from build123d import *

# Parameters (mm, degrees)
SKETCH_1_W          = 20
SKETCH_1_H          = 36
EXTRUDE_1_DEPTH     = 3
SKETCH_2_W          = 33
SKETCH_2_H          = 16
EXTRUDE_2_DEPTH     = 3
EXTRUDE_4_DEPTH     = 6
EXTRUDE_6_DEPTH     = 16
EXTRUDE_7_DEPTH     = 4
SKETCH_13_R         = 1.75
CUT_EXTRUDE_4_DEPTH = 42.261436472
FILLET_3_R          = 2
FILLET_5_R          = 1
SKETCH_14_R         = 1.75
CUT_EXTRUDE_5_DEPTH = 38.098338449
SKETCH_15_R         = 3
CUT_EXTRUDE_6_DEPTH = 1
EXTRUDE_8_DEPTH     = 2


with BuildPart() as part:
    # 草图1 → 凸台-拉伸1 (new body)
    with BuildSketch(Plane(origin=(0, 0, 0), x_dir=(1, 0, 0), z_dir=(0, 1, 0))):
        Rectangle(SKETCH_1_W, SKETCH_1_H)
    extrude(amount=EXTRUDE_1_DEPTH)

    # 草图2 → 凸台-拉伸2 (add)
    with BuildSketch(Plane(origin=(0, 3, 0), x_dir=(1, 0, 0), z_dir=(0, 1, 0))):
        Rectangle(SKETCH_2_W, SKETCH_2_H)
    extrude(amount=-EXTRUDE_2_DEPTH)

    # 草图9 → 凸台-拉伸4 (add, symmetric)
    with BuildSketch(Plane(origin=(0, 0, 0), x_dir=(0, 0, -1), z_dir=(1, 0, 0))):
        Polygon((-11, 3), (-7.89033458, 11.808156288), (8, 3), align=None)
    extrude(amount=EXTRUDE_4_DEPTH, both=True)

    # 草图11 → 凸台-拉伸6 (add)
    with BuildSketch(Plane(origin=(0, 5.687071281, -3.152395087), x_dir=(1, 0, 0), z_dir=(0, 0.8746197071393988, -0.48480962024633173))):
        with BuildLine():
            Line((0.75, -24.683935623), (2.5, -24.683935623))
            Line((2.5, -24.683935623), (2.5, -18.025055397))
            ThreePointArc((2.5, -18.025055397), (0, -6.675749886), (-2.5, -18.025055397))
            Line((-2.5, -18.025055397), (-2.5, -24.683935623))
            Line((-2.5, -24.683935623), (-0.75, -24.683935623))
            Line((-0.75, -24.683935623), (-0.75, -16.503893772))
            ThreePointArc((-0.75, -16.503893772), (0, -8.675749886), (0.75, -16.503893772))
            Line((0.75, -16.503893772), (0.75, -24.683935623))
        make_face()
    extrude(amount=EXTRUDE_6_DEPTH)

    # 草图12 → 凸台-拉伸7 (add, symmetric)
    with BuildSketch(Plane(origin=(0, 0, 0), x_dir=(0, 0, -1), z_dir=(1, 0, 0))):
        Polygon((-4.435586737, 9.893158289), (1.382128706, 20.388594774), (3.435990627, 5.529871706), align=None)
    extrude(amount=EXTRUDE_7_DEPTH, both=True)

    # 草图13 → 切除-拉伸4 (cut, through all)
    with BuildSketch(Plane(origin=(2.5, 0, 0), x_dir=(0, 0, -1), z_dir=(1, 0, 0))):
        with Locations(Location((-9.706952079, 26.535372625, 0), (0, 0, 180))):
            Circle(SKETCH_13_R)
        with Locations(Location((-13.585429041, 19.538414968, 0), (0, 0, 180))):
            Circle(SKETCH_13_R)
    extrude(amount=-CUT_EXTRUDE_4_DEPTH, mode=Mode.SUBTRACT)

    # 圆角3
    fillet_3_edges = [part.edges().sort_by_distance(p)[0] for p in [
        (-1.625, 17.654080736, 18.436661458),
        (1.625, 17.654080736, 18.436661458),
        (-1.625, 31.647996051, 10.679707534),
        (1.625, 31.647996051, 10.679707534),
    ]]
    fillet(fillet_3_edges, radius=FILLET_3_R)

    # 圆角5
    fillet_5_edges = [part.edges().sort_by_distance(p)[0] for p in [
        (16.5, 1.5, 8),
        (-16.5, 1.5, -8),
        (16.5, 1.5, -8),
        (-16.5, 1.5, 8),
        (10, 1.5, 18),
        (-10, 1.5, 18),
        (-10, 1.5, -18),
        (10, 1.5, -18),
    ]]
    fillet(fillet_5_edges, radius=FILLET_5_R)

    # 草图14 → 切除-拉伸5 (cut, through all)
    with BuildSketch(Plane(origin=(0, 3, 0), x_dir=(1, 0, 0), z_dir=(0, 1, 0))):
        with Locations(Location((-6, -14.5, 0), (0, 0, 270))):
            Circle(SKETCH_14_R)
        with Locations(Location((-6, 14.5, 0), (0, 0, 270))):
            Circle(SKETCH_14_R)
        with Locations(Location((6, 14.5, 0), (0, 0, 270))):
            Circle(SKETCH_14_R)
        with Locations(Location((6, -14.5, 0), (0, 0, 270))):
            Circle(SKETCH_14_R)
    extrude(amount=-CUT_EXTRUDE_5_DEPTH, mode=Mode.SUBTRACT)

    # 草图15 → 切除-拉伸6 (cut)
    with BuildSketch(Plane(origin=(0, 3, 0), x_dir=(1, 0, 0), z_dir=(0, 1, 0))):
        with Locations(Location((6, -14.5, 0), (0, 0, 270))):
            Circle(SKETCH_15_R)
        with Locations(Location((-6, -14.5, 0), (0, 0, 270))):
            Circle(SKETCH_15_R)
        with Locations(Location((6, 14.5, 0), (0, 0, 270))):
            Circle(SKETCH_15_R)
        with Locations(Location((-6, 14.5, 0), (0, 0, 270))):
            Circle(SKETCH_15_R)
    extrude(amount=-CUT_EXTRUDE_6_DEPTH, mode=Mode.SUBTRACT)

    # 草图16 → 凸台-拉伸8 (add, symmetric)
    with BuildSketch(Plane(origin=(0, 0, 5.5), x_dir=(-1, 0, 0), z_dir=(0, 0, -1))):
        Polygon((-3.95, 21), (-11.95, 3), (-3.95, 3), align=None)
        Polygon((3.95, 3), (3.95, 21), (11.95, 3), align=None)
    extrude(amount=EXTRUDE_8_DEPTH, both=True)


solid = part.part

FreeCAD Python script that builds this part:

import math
import FreeCAD as App
import Part
import Sketcher
from FreeCAD import Vector
Q = App.Units.Quantity


def edges_at(feature, points):
    """Names of the edges that pass closest to the given points."""
    edges = feature.Shape.Edges
    near = lambda p: min(range(len(edges)), key=lambda i: edges[i].distToShape(Part.Vertex(*p))[0])
    return sorted({f"Edge{near(p) + 1}" for p in points})


def add_polygon(sketch, points):
    """Adds a closed chain of lines whose ends are joined by coincident constraints."""
    first, n = sketch.GeometryCount, len(points)
    for a, b in zip(points, points[1:] + points[:1]):
        sketch.addGeometry(Part.LineSegment(App.Vector(*a, 0), App.Vector(*b, 0)), False)
    for i in range(n):
        sketch.addConstraint(Sketcher.Constraint("Coincident", first + i, 2, first + (i + 1) % n, 1))

doc = App.newDocument("Part")
body = doc.addObject("PartDesign::Body", "Body")

# Sketch on XZ plane
sketch1 = doc.addObject("Sketcher::SketchObject", "Sketch")
body.addObject(sketch1)
sketch1.AttachmentSupport = (doc.XZ_Plane, [""])
sketch1.MapMode = "FlatFace"
add_polygon(sketch1, [(-10, -18), (-10, 18), (10, 18), (10, -18)])  # lines 0-3
sketch1.addConstraint([
    Sketcher.Constraint("Vertical", 0),
    Sketcher.Constraint("Horizontal", 1),
    Sketcher.Constraint("Vertical", 2),
    Sketcher.Constraint("Horizontal", 3),
    Sketcher.Constraint("Symmetric", 0, 2, 2, 2, -1, 1),
    Sketcher.Constraint("DistanceX", 1, 1, 1, 2, 20.0),
    Sketcher.Constraint("DistanceY", 0, 1, 0, 2, 36.0),
])
pad1 = doc.addObject("PartDesign::Pad", "Pad")
body.addObject(pad1)
pad1.Profile = sketch1
pad1.Length = 3
pad1.Reversed = True

# Sketch on XZ plane
sketch2 = doc.addObject("Sketcher::SketchObject", "Sketch001")
body.addObject(sketch2)
sketch2.AttachmentSupport = (doc.XZ_Plane, [""])
sketch2.MapMode = "FlatFace"
sketch2.AttachmentOffset = App.Placement(Vector(0, 0, -3), App.Rotation())
add_polygon(sketch2, [(-16, -8), (-16, 8), (16, 8), (16, -8)])  # lines 0-3
sketch2.addConstraint([
    Sketcher.Constraint("Vertical", 0),
    Sketcher.Constraint("Horizontal", 1),
    Sketcher.Constraint("Vertical", 2),
    Sketcher.Constraint("Horizontal", 3),
    Sketcher.Constraint("Symmetric", 0, 2, 2, 2, -1, 1),
    Sketcher.Constraint("DistanceX", 1, 1, 1, 2, 33.0),
    Sketcher.Constraint("DistanceY", 0, 1, 0, 2, 16.0),
])
pad2 = doc.addObject("PartDesign::Pad", "Pad001")
body.addObject(pad2)
pad2.Profile = sketch2
pad2.Length = 3

# Sketch on YZ plane
sketch3 = doc.addObject("Sketcher::SketchObject", "Sketch002")
body.addObject(sketch3)
sketch3.AttachmentSupport = (doc.YZ_Plane, [""])
sketch3.MapMode = "FlatFace"
add_polygon(sketch3, [(12, 8), (3, 11), (3, -8)])  # lines 0-2
sketch3.addConstraint([
    Sketcher.Constraint("Vertical", 1),
    Sketcher.Constraint("DistanceY", 1, 2, 1, 1, 19.0),
    Sketcher.Constraint("Angle", 2, Q("61 deg")),
    Sketcher.Constraint("DistanceX", -1, 1, 0, 2, 3.0),
    Sketcher.Constraint("DistanceY", -1, 1, 0, 2, 11.0),
    Sketcher.Constraint("Distance", 2, 18.168279),
])
pad3 = doc.addObject("PartDesign::Pad", "Pad002")
body.addObject(pad3)
pad3.Profile = sketch3
pad3.Length = 12
pad3.Midplane = True

# Sketch on an angled plane
sketch4 = doc.addObject("Sketcher::SketchObject", "Sketch003")
body.addObject(sketch4)
sketch4.Placement = App.Placement(Vector(0, 5.687071, -3.152395), App.Rotation(Vector(1, 0, 0), Vector(0, -0.48480962, -0.874619707), Vector(0, 0.874619707, -0.48480962), "ZXY"))
sketch4.addGeometry([
    Part.LineSegment(Vector(0.8, -24.7, 0), Vector(2.5, -24.7, 0)),  # 0
    Part.LineSegment(Vector(2.5, -24.7, 0), Vector(2.5, -18, 0)),  # 1
    Part.ArcOfCircle(Part.Circle(Vector(0, -12.6, 0), Vector(0, 0, 1), 6), math.radians(-65), math.radians(245)),  # 2
    Part.LineSegment(Vector(-2.5, -18, 0), Vector(-2.5, -24.7, 0)),  # 3
    Part.LineSegment(Vector(-2.5, -24.7, 0), Vector(-0.8, -24.7, 0)),  # 4
    Part.LineSegment(Vector(-0.8, -24.7, 0), Vector(-0.8, -16.5, 0)),  # 5
    Part.ArcOfCircle(Part.Circle(Vector(0, -12.6, 0), Vector(0, 0, 1), 4), math.radians(-79), math.radians(259)),  # 6
    Part.LineSegment(Vector(0.8, -16.5, 0), Vector(0.8, -24.7, 0)),  # 7
], False)
sketch4.addConstraint([
    Sketcher.Constraint("Coincident", 0, 2, 1, 1),
    Sketcher.Constraint("Coincident", 1, 2, 2, 1),
    Sketcher.Constraint("Coincident", 2, 2, 3, 1),
    Sketcher.Constraint("Coincident", 3, 2, 4, 1),
    Sketcher.Constraint("Coincident", 4, 2, 5, 1),
    Sketcher.Constraint("Coincident", 5, 2, 6, 2),
    Sketcher.Constraint("Coincident", 6, 1, 7, 1),
    Sketcher.Constraint("Coincident", 7, 2, 0, 1),
    Sketcher.Constraint("Horizontal", 0),
    Sketcher.Constraint("Vertical", 1),
    Sketcher.Constraint("Vertical", 3),
    Sketcher.Constraint("Horizontal", 4),
    Sketcher.Constraint("Vertical", 5),
    Sketcher.Constraint("Vertical", 7),
    Sketcher.Constraint("Coincident", 6, 3, 2, 3),
    Sketcher.Constraint("Symmetric", 1, 2, 2, 2, -2),
    Sketcher.Constraint("Symmetric", 4, 2, 7, 2, -2),
    Sketcher.Constraint("Radius", 2, 5.95),
    Sketcher.Constraint("Radius", 6, 3.95),
    Sketcher.Constraint("DistanceX", 2, 2, 1, 2, 5.0),
    Sketcher.Constraint("DistanceX", 0, 1, 0, 2, 1.75),
    Sketcher.Constraint("DistanceY", 1, 1, 1, 2, 6.65888),
    Sketcher.Constraint("DistanceY", 2, 3, -1, 1, 12.62575),
])
pad4 = doc.addObject("PartDesign::Pad", "Pad003")
body.addObject(pad4)
pad4.Profile = sketch4
pad4.Length = 16

# Sketch on YZ plane
sketch5 = doc.addObject("Sketcher::SketchObject", "Sketch004")
body.addObject(sketch5)
sketch5.AttachmentSupport = (doc.YZ_Plane, [""])
sketch5.MapMode = "FlatFace"
add_polygon(sketch5, [(20, -1), (10, 4), (6, -3)])  # lines 0-2
sketch5.addConstraint([
    Sketcher.Constraint("Perpendicular", 0, 1),
    Sketcher.Constraint("Angle", 0, Q("151 deg")),
    Sketcher.Constraint("Distance", 0, 12.0),
    Sketcher.Constraint("Distance", 1, 9.0),
    Sketcher.Constraint("DistanceX", -1, 1, 0, 2, 9.893158),
    Sketcher.Constraint("DistanceY", 1, 2, -1, 1, 3.435991),
])
pad5 = doc.addObject("PartDesign::Pad", "Pad004")
body.addObject(pad5)
pad5.Profile = sketch5
pad5.Length = 8
pad5.Midplane = True

# Sketch on YZ plane
sketch6 = doc.addObject("Sketcher::SketchObject", "Sketch005")
body.addObject(sketch6)
sketch6.AttachmentSupport = (doc.YZ_Plane, [""])
sketch6.MapMode = "FlatFace"
sketch6.AttachmentOffset = App.Placement(Vector(0, 0, 2.5), App.Rotation())
sketch6.addGeometry([
    Part.Circle(Vector(26.5, 9.7, 0), Vector(0, 0, 1), 1.8),
    Part.Circle(Vector(19.5, 13.6, 0), Vector(0, 0, 1), 1.8),
], False)
sketch6.addConstraint([
    Sketcher.Constraint("Equal", 0, 1),
    Sketcher.Constraint("Diameter", 0, 3.5),
    Sketcher.Constraint("DistanceY", -1, 1, 1, 3, 13.585429),
    Sketcher.Constraint("DistanceX", -1, 1, 0, 3, 26.535373),
    Sketcher.Constraint("DistanceY", -1, 1, 0, 3, 9.706952),
    Sketcher.Constraint("DistanceX", -1, 1, 1, 3, 19.538415),
])
pocket1 = doc.addObject("PartDesign::Pocket", "Pocket")
body.addObject(pocket1)
pocket1.Profile = sketch6
pocket1.Type = "ThroughAll"
doc.recompute()

fillet = doc.addObject("PartDesign::Fillet", "Fillet")
body.addObject(fillet)
fillet.Base = (pocket1, edges_at(pocket1, [
    (-1.625, 17.654, 18.437),
    (1.625, 17.654, 18.437),
    (-1.625, 31.648, 10.68),
    (1.625, 31.648, 10.68),
]))
fillet.Radius = 2
doc.recompute()

fillet2 = doc.addObject("PartDesign::Fillet", "Fillet001")
body.addObject(fillet2)
fillet2.Base = (fillet, edges_at(fillet, [
    (16.5, 1.5, 8),
    (-16.5, 1.5, -8),
    (16.5, 1.5, -8),
    (-16.5, 1.5, 8),
    (10, 1.5, 18),
    (-10, 1.5, 18),
    (-10, 1.5, -18),
    (10, 1.5, -18),
]))
fillet2.Radius = 1

# Sketch on XZ plane
sketch7 = doc.addObject("Sketcher::SketchObject", "Sketch006")
body.addObject(sketch7)
sketch7.AttachmentSupport = (doc.XZ_Plane, [""])
sketch7.MapMode = "FlatFace"
sketch7.AttachmentOffset = App.Placement(Vector(0, 0, -3), App.Rotation())
sketch7.addGeometry([
    Part.Circle(Vector(-6, 14.5, 0), Vector(0, 0, 1), 1.8),
    Part.Circle(Vector(-6, -14.5, 0), Vector(0, 0, 1), 1.8),
    Part.Circle(Vector(6, -14.5, 0), Vector(0, 0, 1), 1.8),
    Part.Circle(Vector(6, 14.5, 0), Vector(0, 0, 1), 1.8),
], False)
sketch7.addConstraint([
    Sketcher.Constraint("Equal", 0, 1),
    Sketcher.Constraint("Equal", 1, 2),
    Sketcher.Constraint("Equal", 2, 3),
    Sketcher.Constraint("Symmetric", 0, 3, 2, 3, -1, 1),
    Sketcher.Constraint("Symmetric", 1, 3, 3, 3, -1, 1),
    Sketcher.Constraint("Symmetric", 1, 3, 2, 3, -2),
    Sketcher.Constraint("Diameter", 0, 3.5),
    Sketcher.Constraint("DistanceX", 0, 3, -1, 1, 6.0),
    Sketcher.Constraint("DistanceY", 1, 3, 0, 3, 29.0),
])
pocket2 = doc.addObject("PartDesign::Pocket", "Pocket001")
body.addObject(pocket2)
pocket2.Profile = sketch7
pocket2.Type = "ThroughAll"
pocket2.Reversed = True

# Sketch on XZ plane
sketch8 = doc.addObject("Sketcher::SketchObject", "Sketch007")
body.addObject(sketch8)
sketch8.AttachmentSupport = (doc.XZ_Plane, [""])
sketch8.MapMode = "FlatFace"
sketch8.AttachmentOffset = App.Placement(Vector(0, 0, -3), App.Rotation())
sketch8.addGeometry([
    Part.Circle(Vector(6, 14.5, 0), Vector(0, 0, 1), 3),
    Part.Circle(Vector(-6, 14.5, 0), Vector(0, 0, 1), 3),
    Part.Circle(Vector(6, -14.5, 0), Vector(0, 0, 1), 3),
    Part.Circle(Vector(-6, -14.5, 0), Vector(0, 0, 1), 3),
], False)
sketch8.addConstraint([
    Sketcher.Constraint("Equal", 0, 1),
    Sketcher.Constraint("Equal", 1, 2),
    Sketcher.Constraint("Equal", 2, 3),
    Sketcher.Constraint("Symmetric", 1, 3, 2, 3, -1, 1),
    Sketcher.Constraint("Symmetric", 0, 3, 3, 3, -1, 1),
    Sketcher.Constraint("Symmetric", 0, 3, 1, 3, -2),
    Sketcher.Constraint("Diameter", 0, 6.0),
    Sketcher.Constraint("DistanceX", -1, 1, 0, 3, 6.0),
    Sketcher.Constraint("DistanceY", 2, 3, 0, 3, 29.0),
])
pocket3 = doc.addObject("PartDesign::Pocket", "Pocket002")
body.addObject(pocket3)
pocket3.Profile = sketch8
pocket3.Length = 1
pocket3.Reversed = True

# Sketch on XY plane
sketch9 = doc.addObject("Sketcher::SketchObject", "Sketch008")
body.addObject(sketch9)
sketch9.AttachmentSupport = (doc.XY_Plane, [""])
sketch9.MapMode = "FlatFace"
sketch9.AttachmentOffset = App.Placement(Vector(0, 0, 5.5), App.Rotation())
add_polygon(sketch9, [(4, 21), (12, 3), (4, 3)])  # lines 0-2
add_polygon(sketch9, [(-4, 21), (-4, 3), (-12, 3)])  # lines 3-5
sketch9.addConstraint([
    Sketcher.Constraint("Horizontal", 1),
    Sketcher.Constraint("Vertical", 2),
    Sketcher.Constraint("Vertical", 3),
    Sketcher.Constraint("Horizontal", 4),
    Sketcher.Constraint("Symmetric", 1, 2, 3, 2, -2),
    Sketcher.Constraint("Horizontal", 2, 2, 5, 2),
    Sketcher.Constraint("Equal", 1, 4),
    Sketcher.Constraint("DistanceX", 1, 2, 1, 1, 8.0),
    Sketcher.Constraint("DistanceY", 2, 1, 2, 2, 18.0),
    Sketcher.Constraint("DistanceY", -1, 1, 0, 2, 3.0),
    Sketcher.Constraint("DistanceX", 3, 2, 1, 2, 7.9),
])
pad6 = doc.addObject("PartDesign::Pad", "Pad005")
body.addObject(pad6)
pad6.Profile = sketch9
pad6.Length = 4
pad6.Midplane = True

doc.recompute()
